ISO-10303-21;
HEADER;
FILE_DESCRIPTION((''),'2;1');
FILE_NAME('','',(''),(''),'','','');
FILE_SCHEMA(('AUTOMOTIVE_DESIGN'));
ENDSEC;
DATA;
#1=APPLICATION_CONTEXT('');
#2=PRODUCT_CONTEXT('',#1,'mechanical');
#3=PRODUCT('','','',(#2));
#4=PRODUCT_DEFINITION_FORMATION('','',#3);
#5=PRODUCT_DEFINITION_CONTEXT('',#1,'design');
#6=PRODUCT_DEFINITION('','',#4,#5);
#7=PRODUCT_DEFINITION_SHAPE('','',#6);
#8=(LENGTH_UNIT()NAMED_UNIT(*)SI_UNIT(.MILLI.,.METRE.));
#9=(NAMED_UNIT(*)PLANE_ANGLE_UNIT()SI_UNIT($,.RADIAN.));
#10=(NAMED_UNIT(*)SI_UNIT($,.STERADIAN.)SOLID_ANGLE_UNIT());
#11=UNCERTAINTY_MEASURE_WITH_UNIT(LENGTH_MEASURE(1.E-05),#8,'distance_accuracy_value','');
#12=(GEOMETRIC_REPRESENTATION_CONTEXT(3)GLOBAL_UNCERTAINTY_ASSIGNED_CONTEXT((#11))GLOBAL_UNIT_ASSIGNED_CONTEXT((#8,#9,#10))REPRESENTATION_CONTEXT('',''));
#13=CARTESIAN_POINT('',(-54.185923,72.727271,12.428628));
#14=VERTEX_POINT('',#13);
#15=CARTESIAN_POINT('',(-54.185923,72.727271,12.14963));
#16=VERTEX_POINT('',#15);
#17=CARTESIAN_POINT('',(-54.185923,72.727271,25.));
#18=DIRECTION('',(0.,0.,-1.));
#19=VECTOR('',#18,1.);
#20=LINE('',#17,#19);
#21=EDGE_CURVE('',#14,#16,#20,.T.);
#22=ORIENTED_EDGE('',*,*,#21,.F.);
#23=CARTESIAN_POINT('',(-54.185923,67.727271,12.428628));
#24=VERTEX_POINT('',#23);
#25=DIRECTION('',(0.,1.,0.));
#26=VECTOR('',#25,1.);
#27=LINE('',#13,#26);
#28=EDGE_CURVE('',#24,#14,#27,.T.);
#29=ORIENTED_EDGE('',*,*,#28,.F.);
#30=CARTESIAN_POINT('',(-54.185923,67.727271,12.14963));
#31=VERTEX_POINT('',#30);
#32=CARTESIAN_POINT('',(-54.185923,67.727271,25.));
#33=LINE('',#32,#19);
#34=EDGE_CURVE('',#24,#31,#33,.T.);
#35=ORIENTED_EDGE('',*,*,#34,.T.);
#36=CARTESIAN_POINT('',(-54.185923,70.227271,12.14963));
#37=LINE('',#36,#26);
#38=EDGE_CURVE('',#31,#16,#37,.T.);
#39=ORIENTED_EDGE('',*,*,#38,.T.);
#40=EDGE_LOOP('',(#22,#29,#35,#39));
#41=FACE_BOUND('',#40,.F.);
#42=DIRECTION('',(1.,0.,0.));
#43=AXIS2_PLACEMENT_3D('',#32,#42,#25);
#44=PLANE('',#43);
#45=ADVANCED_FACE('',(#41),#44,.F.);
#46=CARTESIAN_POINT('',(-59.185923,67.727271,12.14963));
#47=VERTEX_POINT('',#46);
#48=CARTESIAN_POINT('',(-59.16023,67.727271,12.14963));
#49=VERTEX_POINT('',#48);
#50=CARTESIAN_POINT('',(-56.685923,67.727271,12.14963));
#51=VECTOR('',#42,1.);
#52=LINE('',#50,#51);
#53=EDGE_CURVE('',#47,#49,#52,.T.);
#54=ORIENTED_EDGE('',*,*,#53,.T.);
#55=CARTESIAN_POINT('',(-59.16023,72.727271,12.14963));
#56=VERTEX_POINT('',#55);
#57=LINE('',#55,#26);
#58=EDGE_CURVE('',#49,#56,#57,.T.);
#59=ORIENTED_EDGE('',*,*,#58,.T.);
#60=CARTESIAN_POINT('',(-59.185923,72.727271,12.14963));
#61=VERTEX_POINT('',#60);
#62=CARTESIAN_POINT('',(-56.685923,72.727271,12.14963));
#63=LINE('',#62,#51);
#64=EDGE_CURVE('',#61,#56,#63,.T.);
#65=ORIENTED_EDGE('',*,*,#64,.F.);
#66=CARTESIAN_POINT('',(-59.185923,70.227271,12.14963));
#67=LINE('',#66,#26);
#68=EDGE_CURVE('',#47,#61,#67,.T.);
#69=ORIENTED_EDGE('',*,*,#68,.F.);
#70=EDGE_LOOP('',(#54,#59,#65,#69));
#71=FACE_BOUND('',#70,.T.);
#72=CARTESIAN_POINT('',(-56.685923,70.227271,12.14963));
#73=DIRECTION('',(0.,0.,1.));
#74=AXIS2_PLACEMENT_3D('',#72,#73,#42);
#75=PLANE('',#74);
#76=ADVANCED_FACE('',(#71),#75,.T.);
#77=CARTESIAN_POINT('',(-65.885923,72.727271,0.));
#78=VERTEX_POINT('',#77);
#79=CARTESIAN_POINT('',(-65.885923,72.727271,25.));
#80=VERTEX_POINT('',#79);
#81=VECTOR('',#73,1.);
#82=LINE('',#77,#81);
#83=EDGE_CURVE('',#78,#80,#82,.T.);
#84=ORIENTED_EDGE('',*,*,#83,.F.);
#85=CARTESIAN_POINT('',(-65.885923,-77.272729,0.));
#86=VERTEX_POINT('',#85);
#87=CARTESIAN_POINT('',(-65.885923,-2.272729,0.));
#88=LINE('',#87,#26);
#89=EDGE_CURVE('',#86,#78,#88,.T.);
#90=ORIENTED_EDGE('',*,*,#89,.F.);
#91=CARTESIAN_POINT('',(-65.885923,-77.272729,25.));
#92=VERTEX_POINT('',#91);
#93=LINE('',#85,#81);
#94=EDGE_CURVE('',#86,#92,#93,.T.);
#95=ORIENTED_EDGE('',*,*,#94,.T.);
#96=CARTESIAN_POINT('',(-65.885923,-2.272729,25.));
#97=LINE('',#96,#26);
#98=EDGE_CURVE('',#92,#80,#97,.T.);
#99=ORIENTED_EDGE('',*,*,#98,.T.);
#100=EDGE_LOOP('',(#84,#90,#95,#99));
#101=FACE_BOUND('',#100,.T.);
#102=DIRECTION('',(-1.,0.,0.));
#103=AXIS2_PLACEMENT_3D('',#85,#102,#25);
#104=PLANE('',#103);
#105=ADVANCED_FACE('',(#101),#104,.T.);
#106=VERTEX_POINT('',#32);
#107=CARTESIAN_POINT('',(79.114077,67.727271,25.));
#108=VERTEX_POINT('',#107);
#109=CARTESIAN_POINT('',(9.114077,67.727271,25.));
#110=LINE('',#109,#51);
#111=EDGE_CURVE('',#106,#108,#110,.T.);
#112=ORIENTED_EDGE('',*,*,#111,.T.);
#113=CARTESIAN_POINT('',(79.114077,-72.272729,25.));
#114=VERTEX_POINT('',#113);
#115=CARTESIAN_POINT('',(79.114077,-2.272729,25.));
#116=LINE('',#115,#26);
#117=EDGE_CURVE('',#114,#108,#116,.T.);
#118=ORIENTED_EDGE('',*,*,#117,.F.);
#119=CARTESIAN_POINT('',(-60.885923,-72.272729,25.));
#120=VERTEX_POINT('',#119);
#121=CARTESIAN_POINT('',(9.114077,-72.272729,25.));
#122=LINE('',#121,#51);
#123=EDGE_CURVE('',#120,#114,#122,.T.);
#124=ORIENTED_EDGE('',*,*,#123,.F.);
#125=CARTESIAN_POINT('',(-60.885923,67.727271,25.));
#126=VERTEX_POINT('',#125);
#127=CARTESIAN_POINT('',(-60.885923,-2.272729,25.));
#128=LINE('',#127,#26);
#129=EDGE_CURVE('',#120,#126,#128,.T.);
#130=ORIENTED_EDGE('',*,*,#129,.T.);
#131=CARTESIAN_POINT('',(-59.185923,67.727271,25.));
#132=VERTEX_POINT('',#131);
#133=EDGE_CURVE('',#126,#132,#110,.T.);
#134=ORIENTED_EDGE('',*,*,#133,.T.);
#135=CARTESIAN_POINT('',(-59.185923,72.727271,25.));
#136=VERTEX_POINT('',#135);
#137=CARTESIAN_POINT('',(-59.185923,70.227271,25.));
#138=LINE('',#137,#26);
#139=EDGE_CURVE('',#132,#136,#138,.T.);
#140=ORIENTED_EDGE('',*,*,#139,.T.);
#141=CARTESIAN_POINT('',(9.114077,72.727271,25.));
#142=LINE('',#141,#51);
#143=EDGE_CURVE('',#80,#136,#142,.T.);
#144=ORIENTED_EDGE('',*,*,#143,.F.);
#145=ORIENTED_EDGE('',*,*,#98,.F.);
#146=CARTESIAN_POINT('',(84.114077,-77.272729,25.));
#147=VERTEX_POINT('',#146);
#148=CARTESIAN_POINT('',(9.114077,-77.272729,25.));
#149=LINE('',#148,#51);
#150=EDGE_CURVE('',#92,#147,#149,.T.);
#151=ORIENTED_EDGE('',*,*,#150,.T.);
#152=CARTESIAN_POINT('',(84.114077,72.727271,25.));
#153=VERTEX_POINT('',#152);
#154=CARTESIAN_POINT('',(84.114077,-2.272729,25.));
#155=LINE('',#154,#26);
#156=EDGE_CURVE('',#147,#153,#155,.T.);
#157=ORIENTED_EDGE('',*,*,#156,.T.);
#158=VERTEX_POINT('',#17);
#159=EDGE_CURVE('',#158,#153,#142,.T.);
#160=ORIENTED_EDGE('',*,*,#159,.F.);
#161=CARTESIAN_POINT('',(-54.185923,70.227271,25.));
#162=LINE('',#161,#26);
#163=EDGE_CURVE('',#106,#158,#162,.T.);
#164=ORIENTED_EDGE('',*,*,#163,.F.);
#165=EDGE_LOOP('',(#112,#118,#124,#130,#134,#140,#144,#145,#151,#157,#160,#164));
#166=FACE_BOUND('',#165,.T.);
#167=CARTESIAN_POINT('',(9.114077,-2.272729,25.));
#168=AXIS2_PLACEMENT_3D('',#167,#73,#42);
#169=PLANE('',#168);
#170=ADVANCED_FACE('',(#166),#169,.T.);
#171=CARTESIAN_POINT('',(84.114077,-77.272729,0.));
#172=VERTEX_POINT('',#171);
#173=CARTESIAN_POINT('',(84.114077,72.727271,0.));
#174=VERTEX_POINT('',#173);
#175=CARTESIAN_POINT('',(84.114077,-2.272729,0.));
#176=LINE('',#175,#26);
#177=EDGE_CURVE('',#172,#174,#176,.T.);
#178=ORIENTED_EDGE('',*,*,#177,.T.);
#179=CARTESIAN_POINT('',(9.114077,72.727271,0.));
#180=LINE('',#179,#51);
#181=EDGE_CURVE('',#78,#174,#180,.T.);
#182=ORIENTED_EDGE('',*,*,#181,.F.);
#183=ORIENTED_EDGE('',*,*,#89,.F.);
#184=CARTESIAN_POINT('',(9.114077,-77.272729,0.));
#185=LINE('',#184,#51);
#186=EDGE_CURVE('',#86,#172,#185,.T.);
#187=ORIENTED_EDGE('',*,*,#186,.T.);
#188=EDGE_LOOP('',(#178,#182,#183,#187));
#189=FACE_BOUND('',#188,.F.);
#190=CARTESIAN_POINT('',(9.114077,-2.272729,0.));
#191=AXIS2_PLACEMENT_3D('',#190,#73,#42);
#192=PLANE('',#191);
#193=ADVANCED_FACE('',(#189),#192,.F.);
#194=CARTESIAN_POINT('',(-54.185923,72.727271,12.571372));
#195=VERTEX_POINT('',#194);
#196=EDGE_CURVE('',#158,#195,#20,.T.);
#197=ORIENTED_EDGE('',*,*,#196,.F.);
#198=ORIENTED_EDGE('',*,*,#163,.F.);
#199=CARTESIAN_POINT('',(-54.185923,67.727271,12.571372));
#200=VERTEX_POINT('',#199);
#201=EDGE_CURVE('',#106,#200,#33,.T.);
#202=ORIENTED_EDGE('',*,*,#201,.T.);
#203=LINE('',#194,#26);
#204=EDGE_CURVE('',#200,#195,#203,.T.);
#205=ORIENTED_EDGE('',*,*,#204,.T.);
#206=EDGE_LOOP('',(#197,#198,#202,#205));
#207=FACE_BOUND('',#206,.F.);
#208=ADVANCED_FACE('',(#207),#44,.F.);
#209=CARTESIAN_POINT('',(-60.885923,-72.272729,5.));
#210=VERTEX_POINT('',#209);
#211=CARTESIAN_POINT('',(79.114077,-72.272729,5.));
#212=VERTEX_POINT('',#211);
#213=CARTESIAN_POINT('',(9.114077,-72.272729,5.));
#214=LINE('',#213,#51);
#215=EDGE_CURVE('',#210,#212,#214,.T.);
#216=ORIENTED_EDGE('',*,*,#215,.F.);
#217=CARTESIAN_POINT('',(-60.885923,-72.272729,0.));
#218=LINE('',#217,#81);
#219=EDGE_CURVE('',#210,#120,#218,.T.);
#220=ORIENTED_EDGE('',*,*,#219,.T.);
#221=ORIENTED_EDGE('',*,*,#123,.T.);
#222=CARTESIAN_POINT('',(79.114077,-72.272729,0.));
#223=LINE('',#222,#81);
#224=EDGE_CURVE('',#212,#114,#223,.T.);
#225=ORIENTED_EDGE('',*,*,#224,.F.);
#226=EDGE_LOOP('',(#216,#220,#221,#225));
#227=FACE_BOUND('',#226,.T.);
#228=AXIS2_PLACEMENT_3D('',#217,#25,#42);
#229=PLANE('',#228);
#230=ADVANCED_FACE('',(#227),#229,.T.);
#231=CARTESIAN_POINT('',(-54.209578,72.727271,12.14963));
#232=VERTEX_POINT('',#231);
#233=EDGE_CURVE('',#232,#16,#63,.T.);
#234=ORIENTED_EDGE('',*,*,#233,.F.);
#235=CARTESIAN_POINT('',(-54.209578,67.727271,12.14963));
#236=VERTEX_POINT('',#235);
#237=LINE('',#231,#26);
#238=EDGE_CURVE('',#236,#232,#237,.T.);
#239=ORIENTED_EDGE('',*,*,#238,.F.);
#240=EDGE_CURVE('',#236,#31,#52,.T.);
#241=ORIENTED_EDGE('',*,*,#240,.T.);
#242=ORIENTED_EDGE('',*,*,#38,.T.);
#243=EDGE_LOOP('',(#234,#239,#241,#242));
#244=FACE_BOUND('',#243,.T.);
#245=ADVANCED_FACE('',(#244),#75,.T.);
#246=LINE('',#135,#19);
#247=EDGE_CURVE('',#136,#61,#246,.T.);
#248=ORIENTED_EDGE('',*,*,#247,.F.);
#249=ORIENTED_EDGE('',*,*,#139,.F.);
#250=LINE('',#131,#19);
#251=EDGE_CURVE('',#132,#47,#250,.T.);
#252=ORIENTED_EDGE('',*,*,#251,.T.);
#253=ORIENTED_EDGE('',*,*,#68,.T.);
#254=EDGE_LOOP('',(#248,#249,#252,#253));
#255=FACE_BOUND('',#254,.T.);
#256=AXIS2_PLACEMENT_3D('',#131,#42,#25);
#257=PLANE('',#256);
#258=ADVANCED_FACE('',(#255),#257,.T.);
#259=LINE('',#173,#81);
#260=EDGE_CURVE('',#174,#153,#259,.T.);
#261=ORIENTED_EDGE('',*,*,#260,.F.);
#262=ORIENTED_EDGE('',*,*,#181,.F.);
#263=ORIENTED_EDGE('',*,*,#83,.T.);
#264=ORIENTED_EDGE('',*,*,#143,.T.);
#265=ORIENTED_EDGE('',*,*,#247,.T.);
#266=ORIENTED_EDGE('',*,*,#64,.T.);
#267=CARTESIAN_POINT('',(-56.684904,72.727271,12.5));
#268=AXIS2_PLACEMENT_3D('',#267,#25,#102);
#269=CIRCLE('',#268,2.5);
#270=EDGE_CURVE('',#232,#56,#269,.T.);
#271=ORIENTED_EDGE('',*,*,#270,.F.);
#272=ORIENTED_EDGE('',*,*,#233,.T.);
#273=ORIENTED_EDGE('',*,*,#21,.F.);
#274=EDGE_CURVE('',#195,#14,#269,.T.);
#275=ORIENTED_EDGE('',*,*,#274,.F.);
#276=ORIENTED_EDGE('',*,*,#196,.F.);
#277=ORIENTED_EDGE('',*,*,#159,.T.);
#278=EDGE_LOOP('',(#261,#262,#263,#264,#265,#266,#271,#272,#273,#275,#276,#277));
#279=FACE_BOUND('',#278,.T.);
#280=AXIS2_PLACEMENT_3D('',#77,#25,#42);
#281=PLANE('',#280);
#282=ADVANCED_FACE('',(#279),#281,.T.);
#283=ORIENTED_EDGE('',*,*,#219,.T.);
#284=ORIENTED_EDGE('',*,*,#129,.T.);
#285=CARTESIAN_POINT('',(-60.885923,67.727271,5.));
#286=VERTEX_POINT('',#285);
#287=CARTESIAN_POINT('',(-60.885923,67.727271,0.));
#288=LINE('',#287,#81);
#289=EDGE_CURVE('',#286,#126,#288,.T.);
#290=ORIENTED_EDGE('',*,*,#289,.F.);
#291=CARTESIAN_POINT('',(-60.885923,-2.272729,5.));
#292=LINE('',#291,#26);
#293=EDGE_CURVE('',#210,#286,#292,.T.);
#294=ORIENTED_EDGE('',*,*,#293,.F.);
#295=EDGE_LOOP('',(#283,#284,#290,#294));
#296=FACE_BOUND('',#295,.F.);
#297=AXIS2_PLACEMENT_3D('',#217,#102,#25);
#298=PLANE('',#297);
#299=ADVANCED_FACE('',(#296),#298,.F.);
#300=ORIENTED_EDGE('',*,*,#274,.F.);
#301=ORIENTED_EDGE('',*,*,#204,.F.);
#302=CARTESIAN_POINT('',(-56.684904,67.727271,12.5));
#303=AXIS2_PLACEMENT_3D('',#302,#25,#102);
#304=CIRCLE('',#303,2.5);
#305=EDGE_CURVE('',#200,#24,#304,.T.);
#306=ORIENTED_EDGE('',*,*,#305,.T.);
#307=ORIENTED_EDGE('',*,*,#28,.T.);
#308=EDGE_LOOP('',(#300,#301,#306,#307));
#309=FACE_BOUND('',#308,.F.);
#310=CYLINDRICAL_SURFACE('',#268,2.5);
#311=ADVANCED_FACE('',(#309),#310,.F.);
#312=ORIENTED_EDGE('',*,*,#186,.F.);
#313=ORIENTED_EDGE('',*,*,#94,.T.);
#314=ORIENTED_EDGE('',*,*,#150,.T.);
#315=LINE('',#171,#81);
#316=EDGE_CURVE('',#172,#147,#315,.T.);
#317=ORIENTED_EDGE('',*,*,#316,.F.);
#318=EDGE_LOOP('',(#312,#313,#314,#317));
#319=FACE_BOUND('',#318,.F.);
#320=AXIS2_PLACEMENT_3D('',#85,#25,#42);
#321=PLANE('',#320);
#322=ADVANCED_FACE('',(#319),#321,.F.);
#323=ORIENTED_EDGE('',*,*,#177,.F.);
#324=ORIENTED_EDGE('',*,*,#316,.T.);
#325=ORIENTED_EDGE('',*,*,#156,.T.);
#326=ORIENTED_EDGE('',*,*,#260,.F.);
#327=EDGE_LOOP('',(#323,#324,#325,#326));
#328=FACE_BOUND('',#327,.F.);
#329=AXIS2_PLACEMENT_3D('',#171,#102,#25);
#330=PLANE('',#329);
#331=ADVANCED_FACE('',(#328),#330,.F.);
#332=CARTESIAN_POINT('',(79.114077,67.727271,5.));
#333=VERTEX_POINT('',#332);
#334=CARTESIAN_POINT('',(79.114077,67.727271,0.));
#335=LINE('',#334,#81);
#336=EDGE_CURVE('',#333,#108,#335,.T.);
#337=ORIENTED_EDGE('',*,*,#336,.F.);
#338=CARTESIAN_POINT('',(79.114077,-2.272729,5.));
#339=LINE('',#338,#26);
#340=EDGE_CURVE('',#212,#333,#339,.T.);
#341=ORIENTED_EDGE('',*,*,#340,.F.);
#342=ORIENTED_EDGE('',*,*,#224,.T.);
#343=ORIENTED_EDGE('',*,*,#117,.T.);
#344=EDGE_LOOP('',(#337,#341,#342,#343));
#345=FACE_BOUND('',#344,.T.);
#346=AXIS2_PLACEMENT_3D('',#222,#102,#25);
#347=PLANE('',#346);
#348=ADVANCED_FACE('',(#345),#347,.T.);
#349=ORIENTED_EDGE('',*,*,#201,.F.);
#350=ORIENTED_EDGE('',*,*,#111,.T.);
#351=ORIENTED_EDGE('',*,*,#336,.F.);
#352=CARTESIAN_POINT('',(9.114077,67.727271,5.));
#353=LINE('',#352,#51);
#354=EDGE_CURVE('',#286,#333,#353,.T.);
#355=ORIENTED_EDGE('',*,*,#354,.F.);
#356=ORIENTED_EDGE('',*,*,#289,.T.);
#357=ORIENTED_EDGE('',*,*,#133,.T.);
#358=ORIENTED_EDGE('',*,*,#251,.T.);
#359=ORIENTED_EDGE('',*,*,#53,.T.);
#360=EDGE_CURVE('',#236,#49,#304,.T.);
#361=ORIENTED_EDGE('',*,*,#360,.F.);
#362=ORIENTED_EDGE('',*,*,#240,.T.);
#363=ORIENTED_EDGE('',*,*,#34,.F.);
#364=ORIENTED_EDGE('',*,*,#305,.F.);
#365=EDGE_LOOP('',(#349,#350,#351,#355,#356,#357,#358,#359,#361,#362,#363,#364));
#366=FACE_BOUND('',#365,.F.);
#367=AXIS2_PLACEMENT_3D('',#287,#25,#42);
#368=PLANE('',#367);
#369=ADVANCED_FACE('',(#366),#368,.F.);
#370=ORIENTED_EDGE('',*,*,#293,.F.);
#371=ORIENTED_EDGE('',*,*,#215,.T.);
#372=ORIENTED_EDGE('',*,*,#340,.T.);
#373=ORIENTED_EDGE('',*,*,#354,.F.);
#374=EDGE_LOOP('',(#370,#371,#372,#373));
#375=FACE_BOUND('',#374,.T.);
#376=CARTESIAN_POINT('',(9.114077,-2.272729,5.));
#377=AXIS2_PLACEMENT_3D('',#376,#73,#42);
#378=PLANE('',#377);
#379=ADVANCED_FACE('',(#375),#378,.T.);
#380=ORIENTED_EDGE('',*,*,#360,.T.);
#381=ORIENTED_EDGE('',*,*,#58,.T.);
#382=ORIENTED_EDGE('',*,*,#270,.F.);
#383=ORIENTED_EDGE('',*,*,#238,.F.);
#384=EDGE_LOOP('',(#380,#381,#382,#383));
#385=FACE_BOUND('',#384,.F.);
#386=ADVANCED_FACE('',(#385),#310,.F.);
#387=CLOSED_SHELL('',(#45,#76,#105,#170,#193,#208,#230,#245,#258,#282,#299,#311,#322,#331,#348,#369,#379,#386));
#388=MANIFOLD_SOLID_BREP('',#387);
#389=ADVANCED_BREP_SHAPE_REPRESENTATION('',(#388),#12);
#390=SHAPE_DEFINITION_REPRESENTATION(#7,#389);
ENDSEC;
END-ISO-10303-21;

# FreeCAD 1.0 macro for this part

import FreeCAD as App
import Part
import Sketcher
Q = App.Units.Quantity


def add_polygon(sketch, points):
    """Adds a closed chain of lines whose ends are joined by coincident constraints."""
    first, n = sketch.GeometryCount, len(points)
    for a, b in zip(points, points[1:] + points[:1]):
        sketch.addGeometry(Part.LineSegment(App.Vector(*a, 0), App.Vector(*b, 0)), False)
    for i in range(n):
        sketch.addConstraint(Sketcher.Constraint("Coincident", first + i, 2, first + (i + 1) % n, 1))

doc = App.newDocument("Part")
body = doc.addObject("PartDesign::Body", "Body")

sketch1 = body.newObject("Sketcher::SketchObject", "Sketch")
sketch1.AttachmentSupport = (doc.getObject("XY_Plane"), [""])
sketch1.MapMode = "FlatFace"
add_polygon(sketch1, [(-66, 73), (-66, -77), (84, -77), (84, 73)])
add_polygon(sketch1, [(79, -72), (-61, -72), (-61, 68), (79, 68)])
sketch1.addConstraint(Sketcher.Constraint("Vertical", 0))
sketch1.addConstraint(Sketcher.Constraint("Horizontal", 1))
sketch1.addConstraint(Sketcher.Constraint("Vertical", 2))
sketch1.addConstraint(Sketcher.Constraint("Horizontal", 3))
sketch1.addConstraint(Sketcher.Constraint("Horizontal", 4))
sketch1.addConstraint(Sketcher.Constraint("Vertical", 5))
sketch1.addConstraint(Sketcher.Constraint("Horizontal", 6))
sketch1.addConstraint(Sketcher.Constraint("Vertical", 7))
sketch1.addConstraint(Sketcher.Constraint("Equal", 3, 0))
sketch1.addConstraint(Sketcher.Constraint("Equal", 6, 5))
sketch1.addConstraint(Sketcher.Constraint("DistanceX", 1, 1, 1, 2, Q("150 mm")))
sketch1.addConstraint(Sketcher.Constraint("DistanceX", 4, 2, 4, 1, Q("140 mm")))
sketch1.addConstraint(Sketcher.Constraint("DistanceX", 0, 2, 4, 2, Q("5 mm")))
sketch1.addConstraint(Sketcher.Constraint("DistanceY", 0, 2, 4, 2, Q("5 mm")))
sketch1.addConstraint(Sketcher.Constraint("DistanceY", 0, 2, -1, 1, Q("77.272729 mm")))
sketch1.addConstraint(Sketcher.Constraint("DistanceX", 0, 2, -1, 1, Q("65.885923 mm")))
pad1 = body.newObject("PartDesign::Pad", "Pad")
pad1.Profile = sketch1
pad1.Length = 25

sketch2 = body.newObject("Sketcher::SketchObject", "Sketch001")
sketch2.AttachmentSupport = (doc.getObject("XY_Plane"), [""])
sketch2.MapMode = "FlatFace"
add_polygon(sketch2, [(-61, 68), (-61, -72), (79, -72), (79, 68)])
sketch2.addConstraint(Sketcher.Constraint("Vertical", 0))
sketch2.addConstraint(Sketcher.Constraint("Horizontal", 1))
sketch2.addConstraint(Sketcher.Constraint("Vertical", 2))
sketch2.addConstraint(Sketcher.Constraint("Horizontal", 3))
sketch2.addConstraint(Sketcher.Constraint("Equal", 3, 0))
sketch2.addConstraint(Sketcher.Constraint("DistanceX", 1, 1, 1, 2, Q("140 mm")))
sketch2.addConstraint(Sketcher.Constraint("DistanceY", 0, 2, -1, 1, Q("72.272729 mm")))
sketch2.addConstraint(Sketcher.Constraint("DistanceX", 0, 2, -1, 1, Q("60.885923 mm")))
pad2 = body.newObject("PartDesign::Pad", "Pad001")
pad2.Profile = sketch2
pad2.Length = 5

sketch3 = body.newObject("Sketcher::SketchObject", "Sketch002")
sketch3.AttachmentSupport = (doc.getObject("XZ_Plane"), [""])
sketch3.MapMode = "FlatFace"
sketch3.AttachmentOffset = App.Placement(App.Vector(0, 0, -72.727271), App.Rotation())
sketch3.addGeometry(Part.Circle(App.Vector(-56.7, 12.5, 0), App.Vector(0, 0, 1), 2.5), False)
sketch3.addConstraint(Sketcher.Constraint("Diameter", 0, Q("5 mm")))
sketch3.addConstraint(Sketcher.Constraint("DistanceY", -1, 1, 0, 3, Q("12.5 mm")))
sketch3.addConstraint(Sketcher.Constraint("DistanceX", 0, 3, -1, 1, Q("56.684904 mm")))
pocket1 = body.newObject("PartDesign::Pocket", "Pocket")
pocket1.Profile = sketch3
pocket1.Length = 6
pocket1.Reversed = True

sketch4 = body.newObject("Sketcher::SketchObject", "Sketch003")
sketch4.AttachmentSupport = (doc.getObject("XY_Plane"), [""])
sketch4.MapMode = "FlatFace"
sketch4.AttachmentOffset = App.Placement(App.Vector(0, 0, 25), App.Rotation())
add_polygon(sketch4, [(-59, 73), (-59, 68), (-54, 68), (-54, 73)])
sketch4.addConstraint(Sketcher.Constraint("Vertical", 0))
sketch4.addConstraint(Sketcher.Constraint("Horizontal", 1))
sketch4.addConstraint(Sketcher.Constraint("Vertical", 2))
sketch4.addConstraint(Sketcher.Constraint("Horizontal", 3))
sketch4.addConstraint(Sketcher.Constraint("Equal", 3, 0))
sketch4.addConstraint(Sketcher.Constraint("DistanceX", 1, 1, 1, 2, Q("5 mm")))
sketch4.addConstraint(Sketcher.Constraint("DistanceY", -1, 1, 0, 2, Q("67.727271 mm")))
sketch4.addConstraint(Sketcher.Constraint("DistanceX", 0, 2, -1, 1, Q("59.185923 mm")))
pocket2 = body.newObject("PartDesign::Pocket", "Pocket001")
pocket2.Profile = sketch4
pocket2.Length = 12.85037

doc.recompute()
